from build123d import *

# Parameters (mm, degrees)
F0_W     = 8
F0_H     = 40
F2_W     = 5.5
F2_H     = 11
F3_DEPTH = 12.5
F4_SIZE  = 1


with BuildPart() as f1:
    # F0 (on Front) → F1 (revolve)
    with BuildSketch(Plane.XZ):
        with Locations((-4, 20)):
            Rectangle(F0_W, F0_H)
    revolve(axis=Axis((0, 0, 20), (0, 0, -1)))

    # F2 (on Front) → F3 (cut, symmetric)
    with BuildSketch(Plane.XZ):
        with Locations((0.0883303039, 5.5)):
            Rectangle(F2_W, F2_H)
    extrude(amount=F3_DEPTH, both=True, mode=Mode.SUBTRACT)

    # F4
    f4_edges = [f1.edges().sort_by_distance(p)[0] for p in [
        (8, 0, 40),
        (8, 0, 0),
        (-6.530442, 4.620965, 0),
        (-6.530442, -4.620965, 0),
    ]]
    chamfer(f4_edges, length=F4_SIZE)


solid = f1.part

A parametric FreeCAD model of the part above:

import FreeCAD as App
import Part
import Sketcher
Q = App.Units.Quantity


def edges_at(feature, points):
    """Names of the edges that pass closest to the given points."""
    edges = feature.Shape.Edges
    near = lambda p: min(range(len(edges)), key=lambda i: edges[i].distToShape(Part.Vertex(*p))[0])
    return sorted({f"Edge{near(p) + 1}" for p in points})

doc = App.newDocument("Part")
params = doc.addObject("Spreadsheet::Sheet", "Params")
for row, (alias, value) in enumerate([
    ("sketch1_width", "8 mm"),
    ("sketch1_height", "40 mm"),
    ("revolution_angle", "360 deg"),
    ("sketch2_height", "11 mm"),
    ("sketch2_width", "5.5 mm"),
    ("pocket1_length", "25 mm"),
    ("chamfer_size", "1 mm"),
], start=1):
    params.set(f"A{row}", alias)
    params.set(f"B{row}", "=" + value)
    params.setAlias(f"B{row}", alias)

body = doc.addObject("PartDesign::Body", "Body")

# Sketch on XZ plane
sketch1 = body.newObject("Sketcher::SketchObject", "Sketch")
sketch1.AttachmentSupport = (doc.getObject("XZ_Plane"), [""])
sketch1.MapMode = "FlatFace"
sketch1.addGeometry([
    Part.LineSegment(App.Vector(-8, 40, 0), App.Vector(-8, 0, 0)),
    Part.LineSegment(App.Vector(-8, 0, 0), App.Vector(0, 0, 0)),
    Part.LineSegment(App.Vector(0, 0, 0), App.Vector(0, 40, 0)),
    Part.LineSegment(App.Vector(0, 40, 0), App.Vector(-8, 40, 0)),
], False)
sketch1.addConstraint([
    Sketcher.Constraint("Coincident", 0, 2, 1, 1),
    Sketcher.Constraint("Coincident", 1, 2, 2, 1),
    Sketcher.Constraint("Coincident", 2, 2, 3, 1),
    Sketcher.Constraint("Coincident", 3, 2, 0, 1),
    Sketcher.Constraint("Vertical", 0),
    Sketcher.Constraint("Horizontal", 1),
    Sketcher.Constraint("Vertical", 2),
    Sketcher.Constraint("Horizontal", 3),
    Sketcher.Constraint("Coincident", 1, 2, -1, 1),
    Sketcher.Constraint("DistanceX", 1, 1, 1, 2, Q("8 mm")),
    Sketcher.Constraint("DistanceY", 0, 2, 0, 1, Q("40 mm")),
])
sketch1.setExpression("Constraints[9]", "Params.sketch1_width")
sketch1.setExpression("Constraints[10]", "Params.sketch1_height")
revolution = body.newObject("PartDesign::Revolution", "Revolution")
revolution.Profile = sketch1
revolution.ReferenceAxis = (sketch1, ["V_Axis"])
revolution.setExpression("Angle", "Params.revolution_angle")

# Sketch on XZ plane
sketch2 = body.newObject("Sketcher::SketchObject", "Sketch001")
sketch2.AttachmentSupport = (doc.getObject("XZ_Plane"), [""])
sketch2.MapMode = "FlatFace"
sketch2.addGeometry([
    Part.LineSegment(App.Vector(-3, 11, 0), App.Vector(-3, 0, 0)),
    Part.LineSegment(App.Vector(-3, 0, 0), App.Vector(3, 0, 0)),
    Part.LineSegment(App.Vector(3, 0, 0), App.Vector(3, 11, 0)),
    Part.LineSegment(App.Vector(3, 11, 0), App.Vector(-3, 11, 0)),
], False)
sketch2.addConstraint([
    Sketcher.Constraint("Coincident", 0, 2, 1, 1),
    Sketcher.Constraint("Coincident", 1, 2, 2, 1),
    Sketcher.Constraint("Coincident", 2, 2, 3, 1),
    Sketcher.Constraint("Coincident", 3, 2, 0, 1),
    Sketcher.Constraint("Vertical", 0),
    Sketcher.Constraint("Horizontal", 1),
    Sketcher.Constraint("Vertical", 2),
    Sketcher.Constraint("Horizontal", 3),
    Sketcher.Constraint("PointOnObject", 0, 2, -1),
    Sketcher.Constraint("DistanceY", 0, 2, 0, 1, Q("11 mm")),
    Sketcher.Constraint("DistanceX", 1, 1, 1, 2, Q("5.5 mm")),
    Sketcher.Constraint("DistanceX", 0, 2, -1, 1, Q("2.66167 mm")),
])
sketch2.setExpression("Constraints[9]", "Params.sketch2_height")
sketch2.setExpression("Constraints[10]", "Params.sketch2_width")
pocket1 = body.newObject("PartDesign::Pocket", "Pocket")
pocket1.Profile = sketch2
pocket1.setExpression("Length", "Params.pocket1_length")
pocket1.Midplane = True
doc.recompute()

chamfer = body.newObject("PartDesign::Chamfer", "Chamfer")
chamfer.Base = (pocket1, edges_at(pocket1, [
    (8, 0, 40),
    (8, 0, 0),
    (-6.53, 4.621, 0),
    (-6.53, -4.621, 0),
]))
chamfer.setExpression("Size", "Params.chamfer_size")

doc.recompute()
